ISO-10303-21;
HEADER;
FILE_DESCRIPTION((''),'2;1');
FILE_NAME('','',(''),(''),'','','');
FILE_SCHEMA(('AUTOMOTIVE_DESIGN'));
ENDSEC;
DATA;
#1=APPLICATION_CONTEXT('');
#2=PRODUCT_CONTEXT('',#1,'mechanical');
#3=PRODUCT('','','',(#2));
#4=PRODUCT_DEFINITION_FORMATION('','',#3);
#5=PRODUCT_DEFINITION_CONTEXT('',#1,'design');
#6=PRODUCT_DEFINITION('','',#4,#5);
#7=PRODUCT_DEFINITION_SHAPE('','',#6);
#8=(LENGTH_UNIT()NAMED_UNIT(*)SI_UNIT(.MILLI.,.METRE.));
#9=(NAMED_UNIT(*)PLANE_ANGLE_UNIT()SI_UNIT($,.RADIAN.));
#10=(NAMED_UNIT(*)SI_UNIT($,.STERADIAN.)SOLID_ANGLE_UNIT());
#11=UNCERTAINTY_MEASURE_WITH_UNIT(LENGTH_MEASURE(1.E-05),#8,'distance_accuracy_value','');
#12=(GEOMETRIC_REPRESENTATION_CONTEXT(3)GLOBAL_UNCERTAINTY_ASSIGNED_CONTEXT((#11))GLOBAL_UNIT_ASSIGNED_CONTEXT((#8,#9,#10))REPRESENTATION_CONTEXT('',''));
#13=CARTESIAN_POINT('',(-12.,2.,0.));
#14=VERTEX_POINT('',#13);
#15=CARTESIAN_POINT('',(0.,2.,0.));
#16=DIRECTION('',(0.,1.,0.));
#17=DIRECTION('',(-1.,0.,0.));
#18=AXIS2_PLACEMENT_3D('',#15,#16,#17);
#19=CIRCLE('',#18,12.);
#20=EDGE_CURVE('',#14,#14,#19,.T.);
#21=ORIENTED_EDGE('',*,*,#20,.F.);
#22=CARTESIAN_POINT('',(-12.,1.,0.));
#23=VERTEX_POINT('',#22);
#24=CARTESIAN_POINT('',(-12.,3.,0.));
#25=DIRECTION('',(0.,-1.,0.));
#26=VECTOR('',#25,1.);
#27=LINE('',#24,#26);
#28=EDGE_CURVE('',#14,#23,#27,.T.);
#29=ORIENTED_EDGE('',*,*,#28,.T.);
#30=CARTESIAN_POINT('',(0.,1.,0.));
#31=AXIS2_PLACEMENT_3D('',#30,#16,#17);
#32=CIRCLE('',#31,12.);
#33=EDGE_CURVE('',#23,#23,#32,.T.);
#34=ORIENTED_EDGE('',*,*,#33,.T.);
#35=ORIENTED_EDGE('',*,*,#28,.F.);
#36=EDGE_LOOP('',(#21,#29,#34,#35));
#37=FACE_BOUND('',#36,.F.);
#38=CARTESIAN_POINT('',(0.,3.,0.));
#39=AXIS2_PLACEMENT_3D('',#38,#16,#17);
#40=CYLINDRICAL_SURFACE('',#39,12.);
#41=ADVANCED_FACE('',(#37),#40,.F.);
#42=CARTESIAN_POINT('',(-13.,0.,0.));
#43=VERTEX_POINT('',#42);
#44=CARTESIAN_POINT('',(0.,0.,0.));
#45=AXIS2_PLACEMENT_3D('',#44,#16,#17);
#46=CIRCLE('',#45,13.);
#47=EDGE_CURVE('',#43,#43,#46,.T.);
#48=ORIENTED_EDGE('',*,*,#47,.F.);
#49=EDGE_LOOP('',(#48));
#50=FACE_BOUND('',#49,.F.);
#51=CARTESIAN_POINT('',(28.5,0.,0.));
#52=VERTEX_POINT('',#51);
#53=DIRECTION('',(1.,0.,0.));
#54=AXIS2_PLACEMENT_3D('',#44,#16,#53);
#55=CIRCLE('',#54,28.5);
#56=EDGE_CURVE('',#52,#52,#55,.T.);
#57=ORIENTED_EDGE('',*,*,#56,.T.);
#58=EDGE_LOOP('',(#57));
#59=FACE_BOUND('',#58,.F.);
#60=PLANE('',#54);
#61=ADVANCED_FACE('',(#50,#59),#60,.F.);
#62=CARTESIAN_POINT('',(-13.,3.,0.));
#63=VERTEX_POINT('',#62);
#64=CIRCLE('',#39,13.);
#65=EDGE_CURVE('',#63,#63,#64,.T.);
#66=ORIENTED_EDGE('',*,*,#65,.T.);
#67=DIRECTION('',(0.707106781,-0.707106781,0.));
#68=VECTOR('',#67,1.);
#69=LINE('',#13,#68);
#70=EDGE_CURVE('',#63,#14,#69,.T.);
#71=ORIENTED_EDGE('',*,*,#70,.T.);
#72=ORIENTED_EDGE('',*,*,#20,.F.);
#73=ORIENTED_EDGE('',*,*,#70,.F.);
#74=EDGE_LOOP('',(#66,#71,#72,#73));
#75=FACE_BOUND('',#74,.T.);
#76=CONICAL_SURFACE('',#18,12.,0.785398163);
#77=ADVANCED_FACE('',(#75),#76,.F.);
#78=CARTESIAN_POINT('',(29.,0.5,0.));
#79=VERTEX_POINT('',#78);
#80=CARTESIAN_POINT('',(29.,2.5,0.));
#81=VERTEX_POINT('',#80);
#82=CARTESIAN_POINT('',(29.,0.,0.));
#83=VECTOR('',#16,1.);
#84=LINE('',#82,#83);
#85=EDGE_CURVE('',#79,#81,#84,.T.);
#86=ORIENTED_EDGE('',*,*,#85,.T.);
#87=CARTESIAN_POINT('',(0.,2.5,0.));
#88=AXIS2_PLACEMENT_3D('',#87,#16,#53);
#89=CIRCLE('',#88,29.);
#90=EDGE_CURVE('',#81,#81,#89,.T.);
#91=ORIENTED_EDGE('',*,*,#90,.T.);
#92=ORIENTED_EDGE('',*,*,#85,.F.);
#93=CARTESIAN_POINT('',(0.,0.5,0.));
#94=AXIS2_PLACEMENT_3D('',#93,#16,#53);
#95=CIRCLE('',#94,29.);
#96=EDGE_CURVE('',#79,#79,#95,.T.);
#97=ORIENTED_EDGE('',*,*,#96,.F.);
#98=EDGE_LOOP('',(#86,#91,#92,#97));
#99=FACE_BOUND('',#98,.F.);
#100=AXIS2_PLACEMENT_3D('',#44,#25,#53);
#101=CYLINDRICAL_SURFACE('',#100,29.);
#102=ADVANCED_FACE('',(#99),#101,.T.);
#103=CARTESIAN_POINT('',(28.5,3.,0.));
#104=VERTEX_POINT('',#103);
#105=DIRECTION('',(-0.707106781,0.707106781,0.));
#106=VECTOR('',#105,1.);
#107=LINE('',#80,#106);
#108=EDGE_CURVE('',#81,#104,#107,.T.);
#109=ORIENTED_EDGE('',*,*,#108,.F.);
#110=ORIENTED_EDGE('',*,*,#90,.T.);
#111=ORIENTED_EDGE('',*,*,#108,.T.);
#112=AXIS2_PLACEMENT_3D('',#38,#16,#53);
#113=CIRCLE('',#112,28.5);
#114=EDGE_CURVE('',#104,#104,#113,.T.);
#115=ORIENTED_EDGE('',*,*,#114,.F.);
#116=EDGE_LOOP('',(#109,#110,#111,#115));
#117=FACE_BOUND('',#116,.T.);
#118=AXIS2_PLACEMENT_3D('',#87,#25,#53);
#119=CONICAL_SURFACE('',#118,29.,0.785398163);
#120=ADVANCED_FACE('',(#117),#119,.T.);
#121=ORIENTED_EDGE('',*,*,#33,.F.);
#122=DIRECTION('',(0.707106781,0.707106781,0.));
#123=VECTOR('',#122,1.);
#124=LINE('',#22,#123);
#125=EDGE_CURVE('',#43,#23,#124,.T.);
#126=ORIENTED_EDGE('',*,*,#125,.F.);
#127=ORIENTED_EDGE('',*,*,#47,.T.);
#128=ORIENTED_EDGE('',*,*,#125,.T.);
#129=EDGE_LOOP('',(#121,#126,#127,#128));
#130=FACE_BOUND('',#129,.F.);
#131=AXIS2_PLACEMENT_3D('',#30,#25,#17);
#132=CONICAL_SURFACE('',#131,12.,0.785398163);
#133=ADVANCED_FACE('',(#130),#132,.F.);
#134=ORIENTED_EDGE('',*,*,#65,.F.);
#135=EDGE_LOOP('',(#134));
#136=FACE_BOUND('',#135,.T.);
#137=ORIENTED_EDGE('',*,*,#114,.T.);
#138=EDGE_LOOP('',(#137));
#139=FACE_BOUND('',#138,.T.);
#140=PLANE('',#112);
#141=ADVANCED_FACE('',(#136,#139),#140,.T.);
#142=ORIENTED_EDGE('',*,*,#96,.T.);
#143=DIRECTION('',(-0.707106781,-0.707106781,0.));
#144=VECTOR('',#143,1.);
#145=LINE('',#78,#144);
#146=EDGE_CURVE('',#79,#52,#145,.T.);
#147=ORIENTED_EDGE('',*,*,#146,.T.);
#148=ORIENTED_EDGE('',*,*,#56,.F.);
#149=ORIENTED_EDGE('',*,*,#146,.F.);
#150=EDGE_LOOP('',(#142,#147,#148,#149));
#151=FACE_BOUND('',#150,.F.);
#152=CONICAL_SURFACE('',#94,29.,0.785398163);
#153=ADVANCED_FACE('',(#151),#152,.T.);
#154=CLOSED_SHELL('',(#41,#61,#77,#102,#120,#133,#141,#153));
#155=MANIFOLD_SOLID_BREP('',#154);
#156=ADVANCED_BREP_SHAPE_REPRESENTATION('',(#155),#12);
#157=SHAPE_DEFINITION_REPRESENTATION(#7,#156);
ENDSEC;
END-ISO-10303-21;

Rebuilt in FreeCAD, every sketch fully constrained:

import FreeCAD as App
import Part
import Sketcher

V = App.Vector


def edges_at(feature, points):
    """Names of the edges that pass closest to the given points."""
    edges = feature.Shape.Edges
    near = lambda p: min(range(len(edges)), key=lambda i: edges[i].distToShape(Part.Vertex(*p))[0])
    return sorted({f"Edge{near(p) + 1}" for p in points})

doc = App.newDocument("Part")
body = doc.addObject("PartDesign::Body", "Body")

sketch1 = body.newObject("Sketcher::SketchObject", "Sketch")
sketch1.AttachmentSupport = (doc.getObject("XZ_Plane"), [""])
sketch1.MapMode = "FlatFace"
sketch1.addGeometry(Part.Circle(V(0, 0, 0), V(0, 0, 1), 29), False)
sketch1.addConstraint([
    Sketcher.Constraint("Coincident", 0, 3, -1, 1),
    Sketcher.Constraint("Diameter", 0, 58.0),
])
pad1 = body.newObject("PartDesign::Pad", "Pad")
pad1.Profile = sketch1
pad1.Length = 3
pad1.Reversed = True

sketch2 = body.newObject("Sketcher::SketchObject", "Sketch001")
sketch2.AttachmentSupport = (doc.getObject("XZ_Plane"), [""])
sketch2.MapMode = "FlatFace"
sketch2.AttachmentOffset = App.Placement(V(0, 0, -3), App.Rotation())
sketch2.addGeometry(Part.Circle(V(0, 0, 0), V(0, 0, 1), 12), False)
sketch2.addConstraint([
    Sketcher.Constraint("Coincident", 0, 3, -1, 1),
    Sketcher.Constraint("Diameter", 0, 24.0),
])
pocket1 = body.newObject("PartDesign::Pocket", "Pocket")
pocket1.Profile = sketch2
pocket1.Type = "ThroughAll"
pocket1.Reversed = True
doc.recompute()

chamfer = body.newObject("PartDesign::Chamfer", "Chamfer")
chamfer.Base = (pocket1, edges_at(pocket1, [(-29, 0, 0), (-29, 3, 0)]))
chamfer.Size = 0.5
doc.recompute()

chamfer2 = body.newObject("PartDesign::Chamfer", "Chamfer001")
chamfer2.Base = (chamfer, edges_at(chamfer, [(12, 0, 0), (12, 3, 0)]))
chamfer2.Size = 1

doc.recompute()
